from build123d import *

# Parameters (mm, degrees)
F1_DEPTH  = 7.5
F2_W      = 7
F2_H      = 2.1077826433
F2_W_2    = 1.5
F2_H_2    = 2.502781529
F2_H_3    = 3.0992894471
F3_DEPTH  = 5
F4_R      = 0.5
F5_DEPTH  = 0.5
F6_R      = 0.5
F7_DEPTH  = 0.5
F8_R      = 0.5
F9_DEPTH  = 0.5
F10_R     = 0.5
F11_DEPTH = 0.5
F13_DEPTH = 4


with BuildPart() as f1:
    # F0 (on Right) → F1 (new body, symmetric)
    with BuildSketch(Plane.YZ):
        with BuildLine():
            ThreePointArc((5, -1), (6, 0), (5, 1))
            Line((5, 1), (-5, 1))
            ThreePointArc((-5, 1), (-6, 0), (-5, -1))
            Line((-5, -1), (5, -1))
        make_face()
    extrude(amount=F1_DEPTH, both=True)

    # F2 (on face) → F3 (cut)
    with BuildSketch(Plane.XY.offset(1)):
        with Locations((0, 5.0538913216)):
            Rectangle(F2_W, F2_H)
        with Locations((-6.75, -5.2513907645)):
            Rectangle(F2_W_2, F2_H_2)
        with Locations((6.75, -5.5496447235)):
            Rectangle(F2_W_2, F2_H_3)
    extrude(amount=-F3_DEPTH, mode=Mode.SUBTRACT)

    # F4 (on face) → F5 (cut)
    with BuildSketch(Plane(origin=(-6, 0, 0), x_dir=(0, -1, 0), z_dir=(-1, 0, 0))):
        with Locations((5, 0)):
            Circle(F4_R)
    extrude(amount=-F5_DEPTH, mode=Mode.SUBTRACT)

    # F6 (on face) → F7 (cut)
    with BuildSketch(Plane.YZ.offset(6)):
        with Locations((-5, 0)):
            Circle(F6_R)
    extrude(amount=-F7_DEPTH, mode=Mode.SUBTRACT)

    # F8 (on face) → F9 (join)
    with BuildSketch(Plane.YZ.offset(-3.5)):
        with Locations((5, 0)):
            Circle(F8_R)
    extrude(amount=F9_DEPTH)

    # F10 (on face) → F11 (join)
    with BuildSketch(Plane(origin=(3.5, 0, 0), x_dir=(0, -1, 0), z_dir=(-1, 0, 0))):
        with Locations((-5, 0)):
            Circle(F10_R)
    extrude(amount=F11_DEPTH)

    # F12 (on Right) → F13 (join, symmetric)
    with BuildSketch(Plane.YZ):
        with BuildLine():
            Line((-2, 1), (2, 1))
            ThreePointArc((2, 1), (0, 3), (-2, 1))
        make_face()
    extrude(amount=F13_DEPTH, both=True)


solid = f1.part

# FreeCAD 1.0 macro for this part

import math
import FreeCAD as App
import Part
import Sketcher

V = App.Vector

doc = App.newDocument("Part")
body = doc.addObject("PartDesign::Body", "Body")

# Sketch on YZ plane
sketch1 = body.newObject("Sketcher::SketchObject", "Sketch")
sketch1.AttachmentSupport = (doc.getObject("YZ_Plane"), [""])
sketch1.MapMode = "FlatFace"
sketch1.addGeometry([
    Part.ArcOfCircle(Part.Circle(V(5, 0, 0), V(0, 0, 1), 1), math.radians(-90), math.radians(90)),
    Part.LineSegment(V(5, 1, 0), V(-5, 1, 0)),
    Part.ArcOfCircle(Part.Circle(V(-5, 0, 0), V(0, 0, 1), 1), math.radians(90), math.radians(270)),
    Part.LineSegment(V(-5, -1, 0), V(5, -1, 0)),
], False)
sketch1.addConstraint([
    Sketcher.Constraint("Tangent", 0, 2, 1, 1),
    Sketcher.Constraint("Tangent", 1, 2, 2, 1),
    Sketcher.Constraint("Tangent", 2, 2, 3, 1),
    Sketcher.Constraint("Tangent", 3, 2, 0, 1),
    Sketcher.Constraint("Horizontal", 1),
    Sketcher.Constraint("Horizontal", 3),
    Sketcher.Constraint("Symmetric", 0, 3, 2, 3, -1, 1),
    Sketcher.Constraint("Radius", 0, 1.0),
    Sketcher.Constraint("DistanceX", 1, 2, 1, 1, 10.0),
])
pad1 = body.newObject("PartDesign::Pad", "Pad")
pad1.Profile = sketch1
pad1.Length = 15
pad1.Midplane = True

# Sketch on XY plane
sketch2 = body.newObject("Sketcher::SketchObject", "Sketch001")
sketch2.AttachmentSupport = (doc.getObject("XY_Plane"), [""])
sketch2.MapMode = "FlatFace"
sketch2.AttachmentOffset = App.Placement(V(0, 0, 1), App.Rotation())
sketch2.addGeometry([
    Part.LineSegment(V(-3.5, 6.1, 0), V(-3.5, 4, 0)),  # 0
    Part.LineSegment(V(-3.5, 4, 0), V(3.5, 4, 0)),  # 1
    Part.LineSegment(V(3.5, 4, 0), V(3.5, 6.1, 0)),  # 2
    Part.LineSegment(V(3.5, 6.1, 0), V(-3.5, 6.1, 0)),  # 3
    Part.LineSegment(V(-7.5, -4, 0), V(-7.5, -6.5, 0)),  # 4
    Part.LineSegment(V(-7.5, -6.5, 0), V(-6, -6.5, 0)),  # 5
    Part.LineSegment(V(-6, -6.5, 0), V(-6, -4, 0)),  # 6
    Part.LineSegment(V(-6, -4, 0), V(-7.5, -4, 0)),  # 7
    Part.LineSegment(V(6, -4, 0), V(6, -7.1, 0)),  # 8
    Part.LineSegment(V(6, -7.1, 0), V(7.5, -7.1, 0)),  # 9
    Part.LineSegment(V(7.5, -7.1, 0), V(7.5, -4, 0)),  # 10
    Part.LineSegment(V(7.5, -4, 0), V(6, -4, 0)),  # 11
], False)
sketch2.addConstraint([
    Sketcher.Constraint("Coincident", 0, 2, 1, 1),
    Sketcher.Constraint("Coincident", 1, 2, 2, 1),
    Sketcher.Constraint("Coincident", 2, 2, 3, 1),
    Sketcher.Constraint("Coincident", 3, 2, 0, 1),
    Sketcher.Constraint("Coincident", 4, 2, 5, 1),
    Sketcher.Constraint("Coincident", 5, 2, 6, 1),
    Sketcher.Constraint("Coincident", 6, 2, 7, 1),
    Sketcher.Constraint("Coincident", 7, 2, 4, 1),
    Sketcher.Constraint("Coincident", 8, 2, 9, 1),
    Sketcher.Constraint("Coincident", 9, 2, 10, 1),
    Sketcher.Constraint("Coincident", 10, 2, 11, 1),
    Sketcher.Constraint("Coincident", 11, 2, 8, 1),
    Sketcher.Constraint("Vertical", 0),
    Sketcher.Constraint("Horizontal", 1),
    Sketcher.Constraint("Vertical", 2),
    Sketcher.Constraint("Horizontal", 3),
    Sketcher.Constraint("Vertical", 4),
    Sketcher.Constraint("Horizontal", 5),
    Sketcher.Constraint("Vertical", 6),
    Sketcher.Constraint("Horizontal", 7),
    Sketcher.Constraint("Vertical", 8),
    Sketcher.Constraint("Horizontal", 9),
    Sketcher.Constraint("Vertical", 10),
    Sketcher.Constraint("Horizontal", 11),
    Sketcher.Constraint("Symmetric", 7, 2, 10, 2, -2),
    Sketcher.Constraint("Equal", 7, 9),
    Sketcher.Constraint("DistanceX", 1, 1, 1, 2, 7.0),
    Sketcher.Constraint("DistanceX", 5, 1, 5, 2, 1.5),
    Sketcher.Constraint("DistanceY", -1, 1, 0, 2, 4.0),
    Sketcher.Constraint("DistanceX", 5, 2, -1, 1, 6.0),
    Sketcher.Constraint("DistanceY", 6, 2, -1, 1, 4.0),
    Sketcher.Constraint("DistanceX", 4, 2, 0, 2, 4.0),
    Sketcher.Constraint("DistanceY", 4, 2, 4, 1, 2.502782),
    Sketcher.Constraint("DistanceY", 8, 2, 8, 1, 3.099289),
    Sketcher.Constraint("DistanceY", 0, 2, 0, 1, 2.107783),
])
pocket1 = body.newObject("PartDesign::Pocket", "Pocket")
pocket1.Profile = sketch2
pocket1.Length = 5

# Sketch on YZ plane
sketch3 = body.newObject("Sketcher::SketchObject", "Sketch002")
sketch3.AttachmentSupport = (doc.getObject("YZ_Plane"), [""])
sketch3.MapMode = "FlatFace"
sketch3.AttachmentOffset = App.Placement(V(0, 0, -6), App.Rotation())
sketch3.addGeometry(Part.Circle(V(-5, 0, 0), V(0, 0, 1), 0.5), False)
sketch3.addConstraint([
    Sketcher.Constraint("PointOnObject", 0, 3, -1),
    Sketcher.Constraint("Diameter", 0, 1.0),
    Sketcher.Constraint("DistanceX", 0, 3, -1, 1, 5.0),
])
pocket2 = body.newObject("PartDesign::Pocket", "Pocket001")
pocket2.Profile = sketch3
pocket2.Length = 0.5
pocket2.Reversed = True

# Sketch on YZ plane
sketch4 = body.newObject("Sketcher::SketchObject", "Sketch003")
sketch4.AttachmentSupport = (doc.getObject("YZ_Plane"), [""])
sketch4.MapMode = "FlatFace"
sketch4.AttachmentOffset = App.Placement(V(0, 0, 6), App.Rotation())
sketch4.addGeometry(Part.Circle(V(-5, 0, 0), V(0, 0, 1), 0.5), False)
sketch4.addConstraint([
    Sketcher.Constraint("PointOnObject", 0, 3, -1),
    Sketcher.Constraint("Diameter", 0, 1.0),
    Sketcher.Constraint("DistanceX", 0, 3, -1, 1, 5.0),
])
pocket3 = body.newObject("PartDesign::Pocket", "Pocket002")
pocket3.Profile = sketch4
pocket3.Length = 0.5

# Sketch on YZ plane
sketch5 = body.newObject("Sketcher::SketchObject", "Sketch004")
sketch5.AttachmentSupport = (doc.getObject("YZ_Plane"), [""])
sketch5.MapMode = "FlatFace"
sketch5.AttachmentOffset = App.Placement(V(0, 0, -3.5), App.Rotation())
sketch5.addGeometry(Part.Circle(V(5, 0, 0), V(0, 0, 1), 0.5), False)
sketch5.addConstraint([
    Sketcher.Constraint("PointOnObject", 0, 3, -1),
    Sketcher.Constraint("Diameter", 0, 1.0),
    Sketcher.Constraint("DistanceX", -1, 1, 0, 3, 5.0),
])
pad2 = body.newObject("PartDesign::Pad", "Pad001")
pad2.Profile = sketch5
pad2.Length = 0.5

# Sketch on YZ plane
sketch6 = body.newObject("Sketcher::SketchObject", "Sketch005")
sketch6.AttachmentSupport = (doc.getObject("YZ_Plane"), [""])
sketch6.MapMode = "FlatFace"
sketch6.AttachmentOffset = App.Placement(V(0, 0, 3.5), App.Rotation())
sketch6.addGeometry(Part.Circle(V(5, 0, 0), V(0, 0, 1), 0.5), False)
sketch6.addConstraint([
    Sketcher.Constraint("PointOnObject", 0, 3, -1),
    Sketcher.Constraint("Diameter", 0, 1.0),
    Sketcher.Constraint("DistanceX", -1, 1, 0, 3, 5.0),
])
pad3 = body.newObject("PartDesign::Pad", "Pad002")
pad3.Profile = sketch6
pad3.Length = 0.5
pad3.Reversed = True

# Sketch on YZ plane
sketch7 = body.newObject("Sketcher::SketchObject", "Sketch006")
sketch7.AttachmentSupport = (doc.getObject("YZ_Plane"), [""])
sketch7.MapMode = "FlatFace"
sketch7.addGeometry([
    Part.LineSegment(V(-2, 1, 0), V(2, 1, 0)),
    Part.ArcOfCircle(Part.Circle(V(0, 1, 0), V(0, 0, 1), 2), math.radians(0), math.radians(180)),
], False)
sketch7.addConstraint([
    Sketcher.Constraint("Coincident", 0, 1, 1, 2),
    Sketcher.Constraint("Coincident", 1, 1, 0, 2),
    Sketcher.Constraint("Horizontal", 0),
    Sketcher.Constraint("PointOnObject", 1, 3, -2),
    Sketcher.Constraint("Horizontal", 1, 3, 0, 1),
    Sketcher.Constraint("Radius", 1, 2.0),
    Sketcher.Constraint("DistanceY", -1, 1, 1, 3, 1.0),
])
pad4 = body.newObject("PartDesign::Pad", "Pad003")
pad4.Profile = sketch7
pad4.Length = 8
pad4.Midplane = True

doc.recompute()
